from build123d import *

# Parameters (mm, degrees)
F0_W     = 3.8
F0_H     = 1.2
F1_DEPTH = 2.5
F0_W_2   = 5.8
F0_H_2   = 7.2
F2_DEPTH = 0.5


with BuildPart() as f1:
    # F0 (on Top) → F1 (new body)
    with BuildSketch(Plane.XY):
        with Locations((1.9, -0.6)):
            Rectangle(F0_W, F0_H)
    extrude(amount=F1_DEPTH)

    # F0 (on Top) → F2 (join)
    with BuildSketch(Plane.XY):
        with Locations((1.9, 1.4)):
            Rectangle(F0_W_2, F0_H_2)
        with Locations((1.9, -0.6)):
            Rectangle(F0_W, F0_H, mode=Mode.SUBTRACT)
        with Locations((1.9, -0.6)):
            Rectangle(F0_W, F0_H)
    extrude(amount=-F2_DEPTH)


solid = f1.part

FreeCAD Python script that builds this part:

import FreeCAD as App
import Part
import Sketcher
from FreeCAD import Vector
Q = App.Units.Quantity


def add_polygon(sketch, points):
    """Adds a closed chain of lines whose ends are joined by coincident constraints."""
    first, n = sketch.GeometryCount, len(points)
    for a, b in zip(points, points[1:] + points[:1]):
        sketch.addGeometry(Part.LineSegment(App.Vector(*a, 0), App.Vector(*b, 0)), False)
    for i in range(n):
        sketch.addConstraint(Sketcher.Constraint("Coincident", first + i, 2, first + (i + 1) % n, 1))

doc = App.newDocument("Part")
params = doc.addObject("Spreadsheet::Sheet", "Params")
for row, (alias, value) in enumerate([
    ("sketch1_width", "3.8 mm"),
    ("sketch1_height", "1.2 mm"),
    ("pad1_length", "2.5 mm"),
    ("sketch2_width", "5.8 mm"),
    ("sketch2_height", "7.2 mm"),
    ("pad2_length", "0.5 mm"),
], start=1):
    params.set(f"A{row}", alias)
    params.set(f"B{row}", "=" + value)
    params.setAlias(f"B{row}", alias)

body = doc.addObject("PartDesign::Body", "Body")

sketch1 = body.newObject("Sketcher::SketchObject", "Sketch")
sketch1.AttachmentSupport = (doc.getObject("XY_Plane"), [""])
sketch1.MapMode = "FlatFace"
add_polygon(sketch1, [(0, 0), (0, -1.2), (3.8, -1.2), (3.8, 0)])
sketch1.addConstraint([
    Sketcher.Constraint("Vertical", 0),
    Sketcher.Constraint("Horizontal", 1),
    Sketcher.Constraint("Vertical", 2),
    Sketcher.Constraint("Horizontal", 3),
    Sketcher.Constraint("Coincident", 3, 2, -1, 1),
    Sketcher.Constraint("DistanceX", 1, 1, 1, 2, Q("3.8 mm")),
    Sketcher.Constraint("DistanceY", 0, 2, 0, 1, Q("1.2 mm")),
])
sketch1.setExpression("Constraints[9]", "Params.sketch1_width")
sketch1.setExpression("Constraints[10]", "Params.sketch1_height")
pad1 = body.newObject("PartDesign::Pad", "Pad")
pad1.Profile = sketch1
pad1.setExpression("Length", "Params.pad1_length")

sketch2 = body.newObject("Sketcher::SketchObject", "Sketch001")
sketch2.AttachmentSupport = (doc.getObject("XY_Plane"), [""])
sketch2.MapMode = "FlatFace"
add_polygon(sketch2, [(-1, 5), (-1, -2.2), (4.8, -2.2), (4.8, 5)])
sketch2.addConstraint([
    Sketcher.Constraint("Vertical", 0),
    Sketcher.Constraint("Horizontal", 1),
    Sketcher.Constraint("Vertical", 2),
    Sketcher.Constraint("Horizontal", 3),
    Sketcher.Constraint("DistanceX", 1, 1, 1, 2, Q("5.8 mm")),
    Sketcher.Constraint("DistanceY", 0, 2, 0, 1, Q("7.2 mm")),
    Sketcher.Constraint("DistanceX", 0, 2, -1, 1, Q("1 mm")),
    Sketcher.Constraint("DistanceY", -1, 1, 2, 2, Q("5 mm")),
])
sketch2.setExpression("Constraints[8]", "Params.sketch2_width")
sketch2.setExpression("Constraints[9]", "Params.sketch2_height")
pad2 = body.newObject("PartDesign::Pad", "Pad001")
pad2.Profile = sketch2
pad2.setExpression("Length", "Params.pad2_length")
pad2.Reversed = True

doc.recompute()
